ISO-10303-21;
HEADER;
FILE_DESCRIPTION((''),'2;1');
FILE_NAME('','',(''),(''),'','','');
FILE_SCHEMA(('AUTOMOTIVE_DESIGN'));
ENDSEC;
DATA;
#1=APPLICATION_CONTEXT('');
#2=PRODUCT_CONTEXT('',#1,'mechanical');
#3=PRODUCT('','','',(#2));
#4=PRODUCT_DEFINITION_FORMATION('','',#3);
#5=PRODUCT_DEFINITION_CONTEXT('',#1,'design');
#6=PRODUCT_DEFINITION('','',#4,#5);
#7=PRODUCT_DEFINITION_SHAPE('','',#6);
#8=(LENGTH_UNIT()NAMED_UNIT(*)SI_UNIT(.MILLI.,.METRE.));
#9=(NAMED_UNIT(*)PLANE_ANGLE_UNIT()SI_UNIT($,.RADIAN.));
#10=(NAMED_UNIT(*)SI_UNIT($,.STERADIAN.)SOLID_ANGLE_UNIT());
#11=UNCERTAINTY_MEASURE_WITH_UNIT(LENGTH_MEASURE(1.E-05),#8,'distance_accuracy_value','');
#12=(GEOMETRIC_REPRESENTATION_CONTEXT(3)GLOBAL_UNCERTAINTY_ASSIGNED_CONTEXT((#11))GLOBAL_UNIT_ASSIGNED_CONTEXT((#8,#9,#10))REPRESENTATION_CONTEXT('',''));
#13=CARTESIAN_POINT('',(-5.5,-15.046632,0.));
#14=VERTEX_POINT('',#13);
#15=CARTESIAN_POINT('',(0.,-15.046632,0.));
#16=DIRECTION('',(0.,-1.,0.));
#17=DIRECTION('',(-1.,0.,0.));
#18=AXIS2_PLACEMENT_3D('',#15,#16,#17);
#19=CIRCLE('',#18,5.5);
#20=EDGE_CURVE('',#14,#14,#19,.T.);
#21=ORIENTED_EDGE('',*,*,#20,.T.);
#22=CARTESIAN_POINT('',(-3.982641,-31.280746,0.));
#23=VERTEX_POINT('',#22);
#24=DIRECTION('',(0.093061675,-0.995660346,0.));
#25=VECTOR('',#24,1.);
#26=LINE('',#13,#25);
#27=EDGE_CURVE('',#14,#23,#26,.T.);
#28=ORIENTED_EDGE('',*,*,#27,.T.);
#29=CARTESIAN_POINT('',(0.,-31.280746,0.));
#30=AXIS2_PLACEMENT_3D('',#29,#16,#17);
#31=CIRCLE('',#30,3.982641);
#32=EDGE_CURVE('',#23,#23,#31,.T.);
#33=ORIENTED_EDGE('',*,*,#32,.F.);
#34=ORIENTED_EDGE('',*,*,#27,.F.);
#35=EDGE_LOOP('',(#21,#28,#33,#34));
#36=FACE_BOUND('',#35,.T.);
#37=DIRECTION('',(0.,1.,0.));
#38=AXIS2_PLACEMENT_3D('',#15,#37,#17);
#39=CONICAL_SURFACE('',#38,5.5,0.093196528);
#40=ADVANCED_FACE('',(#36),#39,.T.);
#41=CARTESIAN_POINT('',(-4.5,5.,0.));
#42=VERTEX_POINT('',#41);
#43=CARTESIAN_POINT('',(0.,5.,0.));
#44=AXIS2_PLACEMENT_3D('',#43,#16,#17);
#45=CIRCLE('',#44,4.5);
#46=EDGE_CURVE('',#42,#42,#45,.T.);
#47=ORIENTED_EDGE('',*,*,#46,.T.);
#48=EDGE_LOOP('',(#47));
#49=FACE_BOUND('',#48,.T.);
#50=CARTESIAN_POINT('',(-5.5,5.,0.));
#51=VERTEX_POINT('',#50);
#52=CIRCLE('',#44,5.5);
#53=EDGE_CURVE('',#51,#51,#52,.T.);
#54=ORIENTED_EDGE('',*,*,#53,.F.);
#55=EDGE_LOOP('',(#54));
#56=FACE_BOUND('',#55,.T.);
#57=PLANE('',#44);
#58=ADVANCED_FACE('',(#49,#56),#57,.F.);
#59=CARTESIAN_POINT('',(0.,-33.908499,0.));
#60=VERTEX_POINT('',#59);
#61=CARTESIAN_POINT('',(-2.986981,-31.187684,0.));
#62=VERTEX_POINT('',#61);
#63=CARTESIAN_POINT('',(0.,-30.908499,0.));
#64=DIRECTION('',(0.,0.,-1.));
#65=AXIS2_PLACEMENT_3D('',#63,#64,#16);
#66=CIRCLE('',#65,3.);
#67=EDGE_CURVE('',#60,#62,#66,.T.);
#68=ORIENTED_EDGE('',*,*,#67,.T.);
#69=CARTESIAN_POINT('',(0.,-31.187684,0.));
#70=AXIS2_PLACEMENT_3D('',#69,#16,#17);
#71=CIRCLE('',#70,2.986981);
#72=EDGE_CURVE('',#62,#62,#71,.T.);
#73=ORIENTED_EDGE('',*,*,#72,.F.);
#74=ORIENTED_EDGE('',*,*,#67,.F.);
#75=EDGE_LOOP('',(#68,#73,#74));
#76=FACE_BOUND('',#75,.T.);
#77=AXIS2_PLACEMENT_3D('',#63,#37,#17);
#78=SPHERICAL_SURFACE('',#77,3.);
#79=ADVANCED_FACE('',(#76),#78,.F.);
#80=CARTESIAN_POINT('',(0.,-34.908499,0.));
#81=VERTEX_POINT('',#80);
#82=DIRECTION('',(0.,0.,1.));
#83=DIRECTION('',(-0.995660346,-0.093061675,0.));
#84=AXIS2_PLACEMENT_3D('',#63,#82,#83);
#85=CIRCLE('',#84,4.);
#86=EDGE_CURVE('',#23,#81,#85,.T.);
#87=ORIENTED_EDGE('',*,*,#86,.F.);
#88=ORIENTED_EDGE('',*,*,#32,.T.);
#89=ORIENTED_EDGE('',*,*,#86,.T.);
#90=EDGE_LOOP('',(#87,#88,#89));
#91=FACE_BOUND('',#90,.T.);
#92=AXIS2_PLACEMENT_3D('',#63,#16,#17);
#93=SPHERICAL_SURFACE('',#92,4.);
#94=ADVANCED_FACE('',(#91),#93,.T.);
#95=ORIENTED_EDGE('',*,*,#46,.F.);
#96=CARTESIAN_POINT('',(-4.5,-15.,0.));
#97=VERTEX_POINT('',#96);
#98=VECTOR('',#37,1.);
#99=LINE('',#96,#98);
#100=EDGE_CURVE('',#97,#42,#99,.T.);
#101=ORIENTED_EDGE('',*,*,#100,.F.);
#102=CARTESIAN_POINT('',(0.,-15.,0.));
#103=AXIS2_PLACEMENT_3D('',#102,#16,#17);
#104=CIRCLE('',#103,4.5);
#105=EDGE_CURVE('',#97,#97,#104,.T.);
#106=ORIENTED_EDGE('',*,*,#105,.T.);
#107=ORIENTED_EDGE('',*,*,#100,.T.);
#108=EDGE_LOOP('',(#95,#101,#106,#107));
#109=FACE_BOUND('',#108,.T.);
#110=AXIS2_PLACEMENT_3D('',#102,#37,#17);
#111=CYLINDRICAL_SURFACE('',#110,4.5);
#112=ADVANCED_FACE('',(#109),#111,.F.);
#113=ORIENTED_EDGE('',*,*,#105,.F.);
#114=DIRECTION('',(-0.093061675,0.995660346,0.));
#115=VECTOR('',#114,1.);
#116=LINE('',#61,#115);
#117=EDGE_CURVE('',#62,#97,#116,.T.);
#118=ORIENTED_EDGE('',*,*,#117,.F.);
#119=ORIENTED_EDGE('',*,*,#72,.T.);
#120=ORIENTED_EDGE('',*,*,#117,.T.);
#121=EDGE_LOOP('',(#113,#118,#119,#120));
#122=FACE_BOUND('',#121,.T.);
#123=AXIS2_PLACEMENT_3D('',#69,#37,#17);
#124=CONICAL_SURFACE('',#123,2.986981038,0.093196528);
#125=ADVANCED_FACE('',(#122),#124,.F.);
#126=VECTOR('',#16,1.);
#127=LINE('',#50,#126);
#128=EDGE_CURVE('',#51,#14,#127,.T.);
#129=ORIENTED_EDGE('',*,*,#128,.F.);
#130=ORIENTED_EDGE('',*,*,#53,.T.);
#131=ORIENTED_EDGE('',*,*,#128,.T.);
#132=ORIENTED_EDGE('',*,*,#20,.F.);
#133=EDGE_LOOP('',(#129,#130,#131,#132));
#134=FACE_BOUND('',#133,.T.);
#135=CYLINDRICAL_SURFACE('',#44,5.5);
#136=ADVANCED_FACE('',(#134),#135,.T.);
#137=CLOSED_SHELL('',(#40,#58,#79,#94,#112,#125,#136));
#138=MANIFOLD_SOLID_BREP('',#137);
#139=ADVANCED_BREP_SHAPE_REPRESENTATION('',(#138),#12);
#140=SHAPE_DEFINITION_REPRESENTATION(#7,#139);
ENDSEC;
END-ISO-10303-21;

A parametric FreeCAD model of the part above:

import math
import FreeCAD as App
import Part
import Sketcher
from FreeCAD import Vector
Q = App.Units.Quantity

doc = App.newDocument("Part")
params = doc.addObject("Spreadsheet::Sheet", "Params")
for row, (alias, value) in enumerate([
    ("sketch1_radius", "4 mm"),
    ("sketch1_radius2", "3 mm"),
    ("sketch1_height", "20 mm"),
    ("revolution_angle", "360 deg"),
], start=1):
    params.set(f"A{row}", alias)
    params.set(f"B{row}", "=" + value)
    params.setAlias(f"B{row}", alias)

body = doc.addObject("PartDesign::Body", "Body")

sketch1 = body.newObject("Sketcher::SketchObject", "Sketch")
sketch1.AttachmentSupport = (doc.getObject("XY_Plane"), [""])
sketch1.MapMode = "FlatFace"
sketch1.addGeometry(Part.LineSegment(Vector(-4.5, -15, 0), Vector(-4.5, 5, 0)), False)
sketch1.addGeometry(Part.LineSegment(Vector(-4.5, 5, 0), Vector(-5.5, 5, 0)), False)
sketch1.addGeometry(Part.LineSegment(Vector(-5.5, 5, 0), Vector(-5.5, -15, 0)), False)
sketch1.addGeometry(Part.LineSegment(Vector(-5.5, -15, 0), Vector(-4, -31.3, 0)), False)
sketch1.addGeometry(Part.ArcOfCircle(Part.Circle(Vector(0, -30.9, 0), Vector(0, 0, 1), 4), math.radians(-175), math.radians(-90)), False)
sketch1.addGeometry(Part.LineSegment(Vector(0, -34.9, 0), Vector(0, -33.9, 0)), False)
sketch1.addGeometry(Part.ArcOfCircle(Part.Circle(Vector(0, -30.9, 0), Vector(0, 0, 1), 3), math.radians(-175), math.radians(-90)), False)
sketch1.addGeometry(Part.LineSegment(Vector(-3, -31.2, 0), Vector(-4.5, -15, 0)), False)
sketch1.addConstraint(Sketcher.Constraint("Coincident", 0, 2, 1, 1))
sketch1.addConstraint(Sketcher.Constraint("Coincident", 1, 2, 2, 1))
sketch1.addConstraint(Sketcher.Constraint("Coincident", 2, 2, 3, 1))
sketch1.addConstraint(Sketcher.Constraint("Tangent", 3, 2, 4, 1))
sketch1.addConstraint(Sketcher.Constraint("Coincident", 4, 2, 5, 1))
sketch1.addConstraint(Sketcher.Constraint("Coincident", 5, 2, 6, 2))
sketch1.addConstraint(Sketcher.Constraint("Tangent", 6, 1, 7, 1))
sketch1.addConstraint(Sketcher.Constraint("Coincident", 7, 2, 0, 1))
sketch1.addConstraint(Sketcher.Constraint("Vertical", 0))
sketch1.addConstraint(Sketcher.Constraint("Horizontal", 1))
sketch1.addConstraint(Sketcher.Constraint("Vertical", 2))
sketch1.addConstraint(Sketcher.Constraint("Vertical", 5))
sketch1.addConstraint(Sketcher.Constraint("Coincident", 6, 3, 4, 3))
sketch1.addConstraint(Sketcher.Constraint("PointOnObject", 4, 3, -2))
sketch1.addConstraint(Sketcher.Constraint("PointOnObject", 4, 2, -2))
sketch1.addConstraint(Sketcher.Constraint("Parallel", 3, 7))
sketch1.addConstraint(Sketcher.Constraint("Equal", 1, 5))
sketch1.addConstraint(Sketcher.Constraint("Radius", 4, Q("4 mm")))
sketch1.addConstraint(Sketcher.Constraint("Radius", 6, Q("3 mm")))
sketch1.addConstraint(Sketcher.Constraint("DistanceY", 0, 1, 0, 2, Q("20 mm")))
sketch1.addConstraint(Sketcher.Constraint("DistanceY", -1, 1, 0, 2, Q("5 mm")))
sketch1.addConstraint(Sketcher.Constraint("DistanceX", 0, 2, -1, 1, Q("4.5 mm")))
sketch1.addConstraint(Sketcher.Constraint("DistanceY", 4, 3, -1, 1, Q("30.908499 mm")))
sketch1.setExpression("Constraints[17]", "Params.sketch1_radius")
sketch1.setExpression("Constraints[18]", "Params.sketch1_radius2")
sketch1.setExpression("Constraints[19]", "Params.sketch1_height")
revolution = body.newObject("PartDesign::Revolution", "Revolution")
revolution.Profile = sketch1
revolution.ReferenceAxis = (sketch1, ["V_Axis"])
revolution.setExpression("Angle", "Params.revolution_angle")

doc.recompute()
